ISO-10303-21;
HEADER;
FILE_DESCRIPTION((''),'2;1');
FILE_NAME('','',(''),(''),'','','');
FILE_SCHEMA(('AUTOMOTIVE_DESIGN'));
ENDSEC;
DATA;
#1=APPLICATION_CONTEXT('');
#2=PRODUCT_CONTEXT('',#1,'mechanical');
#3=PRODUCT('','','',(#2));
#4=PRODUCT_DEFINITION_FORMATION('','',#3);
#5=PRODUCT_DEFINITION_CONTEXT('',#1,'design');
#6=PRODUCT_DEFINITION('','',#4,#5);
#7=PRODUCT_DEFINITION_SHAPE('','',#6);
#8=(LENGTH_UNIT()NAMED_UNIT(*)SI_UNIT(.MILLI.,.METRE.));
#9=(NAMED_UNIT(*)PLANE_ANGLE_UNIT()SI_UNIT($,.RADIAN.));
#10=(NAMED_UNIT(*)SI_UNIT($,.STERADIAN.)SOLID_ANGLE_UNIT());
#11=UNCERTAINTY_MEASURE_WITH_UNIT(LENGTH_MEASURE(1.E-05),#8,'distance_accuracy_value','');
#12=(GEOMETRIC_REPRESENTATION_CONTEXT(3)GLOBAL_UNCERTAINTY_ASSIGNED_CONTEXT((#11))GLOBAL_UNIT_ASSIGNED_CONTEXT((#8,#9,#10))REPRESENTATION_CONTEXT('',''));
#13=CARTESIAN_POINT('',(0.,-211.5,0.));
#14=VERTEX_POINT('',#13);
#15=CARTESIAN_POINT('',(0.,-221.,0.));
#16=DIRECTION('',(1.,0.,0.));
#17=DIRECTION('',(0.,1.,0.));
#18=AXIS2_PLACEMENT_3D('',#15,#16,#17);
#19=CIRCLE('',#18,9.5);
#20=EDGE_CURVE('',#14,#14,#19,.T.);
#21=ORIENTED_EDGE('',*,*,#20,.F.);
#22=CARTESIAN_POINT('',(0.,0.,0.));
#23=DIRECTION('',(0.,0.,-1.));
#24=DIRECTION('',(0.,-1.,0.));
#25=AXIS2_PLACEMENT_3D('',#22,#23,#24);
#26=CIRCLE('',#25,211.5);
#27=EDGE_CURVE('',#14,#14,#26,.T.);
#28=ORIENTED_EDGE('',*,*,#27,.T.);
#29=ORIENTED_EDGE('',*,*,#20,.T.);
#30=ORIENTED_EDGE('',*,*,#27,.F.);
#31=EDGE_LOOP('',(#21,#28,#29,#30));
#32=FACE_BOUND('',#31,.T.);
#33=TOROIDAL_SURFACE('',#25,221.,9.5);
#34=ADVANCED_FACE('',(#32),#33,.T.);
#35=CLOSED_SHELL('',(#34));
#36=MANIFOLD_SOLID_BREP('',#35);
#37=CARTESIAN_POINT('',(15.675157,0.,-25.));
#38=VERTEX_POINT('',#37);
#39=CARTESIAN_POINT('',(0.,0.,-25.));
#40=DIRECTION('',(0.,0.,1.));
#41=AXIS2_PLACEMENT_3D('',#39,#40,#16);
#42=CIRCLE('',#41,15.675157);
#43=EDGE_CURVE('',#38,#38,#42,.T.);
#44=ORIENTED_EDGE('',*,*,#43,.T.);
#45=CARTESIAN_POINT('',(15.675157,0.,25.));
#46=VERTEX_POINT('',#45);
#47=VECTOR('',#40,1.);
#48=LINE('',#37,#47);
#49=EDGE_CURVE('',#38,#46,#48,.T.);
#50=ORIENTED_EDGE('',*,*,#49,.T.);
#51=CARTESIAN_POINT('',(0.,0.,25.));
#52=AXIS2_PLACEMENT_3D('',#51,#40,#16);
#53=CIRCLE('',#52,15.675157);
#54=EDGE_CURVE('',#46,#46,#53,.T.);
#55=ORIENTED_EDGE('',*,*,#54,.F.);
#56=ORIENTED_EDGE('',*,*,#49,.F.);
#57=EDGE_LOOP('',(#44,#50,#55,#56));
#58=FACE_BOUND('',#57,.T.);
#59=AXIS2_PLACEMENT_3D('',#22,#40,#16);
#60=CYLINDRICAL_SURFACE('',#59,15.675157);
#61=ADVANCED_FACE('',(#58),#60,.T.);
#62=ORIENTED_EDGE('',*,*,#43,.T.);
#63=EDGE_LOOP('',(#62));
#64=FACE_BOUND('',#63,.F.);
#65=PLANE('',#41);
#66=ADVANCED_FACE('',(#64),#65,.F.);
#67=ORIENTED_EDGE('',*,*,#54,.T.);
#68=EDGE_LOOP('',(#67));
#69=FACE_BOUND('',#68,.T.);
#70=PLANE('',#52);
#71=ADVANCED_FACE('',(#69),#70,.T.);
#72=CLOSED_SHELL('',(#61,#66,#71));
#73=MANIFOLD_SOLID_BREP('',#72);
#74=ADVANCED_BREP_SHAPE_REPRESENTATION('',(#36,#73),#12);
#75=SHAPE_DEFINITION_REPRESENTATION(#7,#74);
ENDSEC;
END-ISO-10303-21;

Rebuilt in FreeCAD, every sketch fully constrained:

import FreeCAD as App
import Part
import Sketcher
from FreeCAD import Vector
Q = App.Units.Quantity

doc = App.newDocument("Part")
params = doc.addObject("Spreadsheet::Sheet", "Params")
for row, (alias, value) in enumerate([
    ("sketch1_diameter", "19 mm"),
    ("revolution_angle", "360 deg"),
    ("pad1_length", "25 mm"),
    ("pad1_length2", "25 mm"),
], start=1):
    params.set(f"A{row}", alias)
    params.set(f"B{row}", "=" + value)
    params.setAlias(f"B{row}", alias)

body = doc.addObject("PartDesign::Body", "Body")

sketch1 = body.newObject("Sketcher::SketchObject", "Sketch")
sketch1.AttachmentSupport = (doc.getObject("YZ_Plane"), [""])
sketch1.MapMode = "FlatFace"
sketch1.addGeometry(Part.Circle(Vector(-221, 0, 0), Vector(0, 0, 1), 10), False)
sketch1.addConstraint([
    Sketcher.Constraint("PointOnObject", 0, 3, -1),
    Sketcher.Constraint("Diameter", 0, Q("19 mm")),
    Sketcher.Constraint("DistanceX", 0, 3, -1, 1, Q("221 mm")),
])
sketch1.setExpression("Constraints[1]", "Params.sketch1_diameter")
revolution = body.newObject("PartDesign::Revolution", "Revolution")
revolution.Profile = sketch1
revolution.ReferenceAxis = (sketch1, ["V_Axis"])
revolution.setExpression("Angle", "Params.revolution_angle")
body2 = doc.addObject("PartDesign::Body", "Body001")

sketch2 = body2.newObject("Sketcher::SketchObject", "Sketch001")
sketch2.AttachmentSupport = (doc.getObject("XY_Plane001"), [""])
sketch2.MapMode = "FlatFace"
sketch2.addGeometry(Part.Circle(Vector(0, 0, 0), Vector(0, 0, 1), 16), False)
sketch2.addConstraint([
    Sketcher.Constraint("Coincident", 0, 3, -1, 1),
    Sketcher.Constraint("Diameter", 0, Q("31.350314 mm")),
])
pad1 = body2.newObject("PartDesign::Pad", "Pad")
pad1.Profile = sketch2
pad1.Type = "TwoLengths"
pad1.setExpression("Length", "Params.pad1_length")
pad1.setExpression("Length2", "Params.pad1_length2")

doc.recompute()
